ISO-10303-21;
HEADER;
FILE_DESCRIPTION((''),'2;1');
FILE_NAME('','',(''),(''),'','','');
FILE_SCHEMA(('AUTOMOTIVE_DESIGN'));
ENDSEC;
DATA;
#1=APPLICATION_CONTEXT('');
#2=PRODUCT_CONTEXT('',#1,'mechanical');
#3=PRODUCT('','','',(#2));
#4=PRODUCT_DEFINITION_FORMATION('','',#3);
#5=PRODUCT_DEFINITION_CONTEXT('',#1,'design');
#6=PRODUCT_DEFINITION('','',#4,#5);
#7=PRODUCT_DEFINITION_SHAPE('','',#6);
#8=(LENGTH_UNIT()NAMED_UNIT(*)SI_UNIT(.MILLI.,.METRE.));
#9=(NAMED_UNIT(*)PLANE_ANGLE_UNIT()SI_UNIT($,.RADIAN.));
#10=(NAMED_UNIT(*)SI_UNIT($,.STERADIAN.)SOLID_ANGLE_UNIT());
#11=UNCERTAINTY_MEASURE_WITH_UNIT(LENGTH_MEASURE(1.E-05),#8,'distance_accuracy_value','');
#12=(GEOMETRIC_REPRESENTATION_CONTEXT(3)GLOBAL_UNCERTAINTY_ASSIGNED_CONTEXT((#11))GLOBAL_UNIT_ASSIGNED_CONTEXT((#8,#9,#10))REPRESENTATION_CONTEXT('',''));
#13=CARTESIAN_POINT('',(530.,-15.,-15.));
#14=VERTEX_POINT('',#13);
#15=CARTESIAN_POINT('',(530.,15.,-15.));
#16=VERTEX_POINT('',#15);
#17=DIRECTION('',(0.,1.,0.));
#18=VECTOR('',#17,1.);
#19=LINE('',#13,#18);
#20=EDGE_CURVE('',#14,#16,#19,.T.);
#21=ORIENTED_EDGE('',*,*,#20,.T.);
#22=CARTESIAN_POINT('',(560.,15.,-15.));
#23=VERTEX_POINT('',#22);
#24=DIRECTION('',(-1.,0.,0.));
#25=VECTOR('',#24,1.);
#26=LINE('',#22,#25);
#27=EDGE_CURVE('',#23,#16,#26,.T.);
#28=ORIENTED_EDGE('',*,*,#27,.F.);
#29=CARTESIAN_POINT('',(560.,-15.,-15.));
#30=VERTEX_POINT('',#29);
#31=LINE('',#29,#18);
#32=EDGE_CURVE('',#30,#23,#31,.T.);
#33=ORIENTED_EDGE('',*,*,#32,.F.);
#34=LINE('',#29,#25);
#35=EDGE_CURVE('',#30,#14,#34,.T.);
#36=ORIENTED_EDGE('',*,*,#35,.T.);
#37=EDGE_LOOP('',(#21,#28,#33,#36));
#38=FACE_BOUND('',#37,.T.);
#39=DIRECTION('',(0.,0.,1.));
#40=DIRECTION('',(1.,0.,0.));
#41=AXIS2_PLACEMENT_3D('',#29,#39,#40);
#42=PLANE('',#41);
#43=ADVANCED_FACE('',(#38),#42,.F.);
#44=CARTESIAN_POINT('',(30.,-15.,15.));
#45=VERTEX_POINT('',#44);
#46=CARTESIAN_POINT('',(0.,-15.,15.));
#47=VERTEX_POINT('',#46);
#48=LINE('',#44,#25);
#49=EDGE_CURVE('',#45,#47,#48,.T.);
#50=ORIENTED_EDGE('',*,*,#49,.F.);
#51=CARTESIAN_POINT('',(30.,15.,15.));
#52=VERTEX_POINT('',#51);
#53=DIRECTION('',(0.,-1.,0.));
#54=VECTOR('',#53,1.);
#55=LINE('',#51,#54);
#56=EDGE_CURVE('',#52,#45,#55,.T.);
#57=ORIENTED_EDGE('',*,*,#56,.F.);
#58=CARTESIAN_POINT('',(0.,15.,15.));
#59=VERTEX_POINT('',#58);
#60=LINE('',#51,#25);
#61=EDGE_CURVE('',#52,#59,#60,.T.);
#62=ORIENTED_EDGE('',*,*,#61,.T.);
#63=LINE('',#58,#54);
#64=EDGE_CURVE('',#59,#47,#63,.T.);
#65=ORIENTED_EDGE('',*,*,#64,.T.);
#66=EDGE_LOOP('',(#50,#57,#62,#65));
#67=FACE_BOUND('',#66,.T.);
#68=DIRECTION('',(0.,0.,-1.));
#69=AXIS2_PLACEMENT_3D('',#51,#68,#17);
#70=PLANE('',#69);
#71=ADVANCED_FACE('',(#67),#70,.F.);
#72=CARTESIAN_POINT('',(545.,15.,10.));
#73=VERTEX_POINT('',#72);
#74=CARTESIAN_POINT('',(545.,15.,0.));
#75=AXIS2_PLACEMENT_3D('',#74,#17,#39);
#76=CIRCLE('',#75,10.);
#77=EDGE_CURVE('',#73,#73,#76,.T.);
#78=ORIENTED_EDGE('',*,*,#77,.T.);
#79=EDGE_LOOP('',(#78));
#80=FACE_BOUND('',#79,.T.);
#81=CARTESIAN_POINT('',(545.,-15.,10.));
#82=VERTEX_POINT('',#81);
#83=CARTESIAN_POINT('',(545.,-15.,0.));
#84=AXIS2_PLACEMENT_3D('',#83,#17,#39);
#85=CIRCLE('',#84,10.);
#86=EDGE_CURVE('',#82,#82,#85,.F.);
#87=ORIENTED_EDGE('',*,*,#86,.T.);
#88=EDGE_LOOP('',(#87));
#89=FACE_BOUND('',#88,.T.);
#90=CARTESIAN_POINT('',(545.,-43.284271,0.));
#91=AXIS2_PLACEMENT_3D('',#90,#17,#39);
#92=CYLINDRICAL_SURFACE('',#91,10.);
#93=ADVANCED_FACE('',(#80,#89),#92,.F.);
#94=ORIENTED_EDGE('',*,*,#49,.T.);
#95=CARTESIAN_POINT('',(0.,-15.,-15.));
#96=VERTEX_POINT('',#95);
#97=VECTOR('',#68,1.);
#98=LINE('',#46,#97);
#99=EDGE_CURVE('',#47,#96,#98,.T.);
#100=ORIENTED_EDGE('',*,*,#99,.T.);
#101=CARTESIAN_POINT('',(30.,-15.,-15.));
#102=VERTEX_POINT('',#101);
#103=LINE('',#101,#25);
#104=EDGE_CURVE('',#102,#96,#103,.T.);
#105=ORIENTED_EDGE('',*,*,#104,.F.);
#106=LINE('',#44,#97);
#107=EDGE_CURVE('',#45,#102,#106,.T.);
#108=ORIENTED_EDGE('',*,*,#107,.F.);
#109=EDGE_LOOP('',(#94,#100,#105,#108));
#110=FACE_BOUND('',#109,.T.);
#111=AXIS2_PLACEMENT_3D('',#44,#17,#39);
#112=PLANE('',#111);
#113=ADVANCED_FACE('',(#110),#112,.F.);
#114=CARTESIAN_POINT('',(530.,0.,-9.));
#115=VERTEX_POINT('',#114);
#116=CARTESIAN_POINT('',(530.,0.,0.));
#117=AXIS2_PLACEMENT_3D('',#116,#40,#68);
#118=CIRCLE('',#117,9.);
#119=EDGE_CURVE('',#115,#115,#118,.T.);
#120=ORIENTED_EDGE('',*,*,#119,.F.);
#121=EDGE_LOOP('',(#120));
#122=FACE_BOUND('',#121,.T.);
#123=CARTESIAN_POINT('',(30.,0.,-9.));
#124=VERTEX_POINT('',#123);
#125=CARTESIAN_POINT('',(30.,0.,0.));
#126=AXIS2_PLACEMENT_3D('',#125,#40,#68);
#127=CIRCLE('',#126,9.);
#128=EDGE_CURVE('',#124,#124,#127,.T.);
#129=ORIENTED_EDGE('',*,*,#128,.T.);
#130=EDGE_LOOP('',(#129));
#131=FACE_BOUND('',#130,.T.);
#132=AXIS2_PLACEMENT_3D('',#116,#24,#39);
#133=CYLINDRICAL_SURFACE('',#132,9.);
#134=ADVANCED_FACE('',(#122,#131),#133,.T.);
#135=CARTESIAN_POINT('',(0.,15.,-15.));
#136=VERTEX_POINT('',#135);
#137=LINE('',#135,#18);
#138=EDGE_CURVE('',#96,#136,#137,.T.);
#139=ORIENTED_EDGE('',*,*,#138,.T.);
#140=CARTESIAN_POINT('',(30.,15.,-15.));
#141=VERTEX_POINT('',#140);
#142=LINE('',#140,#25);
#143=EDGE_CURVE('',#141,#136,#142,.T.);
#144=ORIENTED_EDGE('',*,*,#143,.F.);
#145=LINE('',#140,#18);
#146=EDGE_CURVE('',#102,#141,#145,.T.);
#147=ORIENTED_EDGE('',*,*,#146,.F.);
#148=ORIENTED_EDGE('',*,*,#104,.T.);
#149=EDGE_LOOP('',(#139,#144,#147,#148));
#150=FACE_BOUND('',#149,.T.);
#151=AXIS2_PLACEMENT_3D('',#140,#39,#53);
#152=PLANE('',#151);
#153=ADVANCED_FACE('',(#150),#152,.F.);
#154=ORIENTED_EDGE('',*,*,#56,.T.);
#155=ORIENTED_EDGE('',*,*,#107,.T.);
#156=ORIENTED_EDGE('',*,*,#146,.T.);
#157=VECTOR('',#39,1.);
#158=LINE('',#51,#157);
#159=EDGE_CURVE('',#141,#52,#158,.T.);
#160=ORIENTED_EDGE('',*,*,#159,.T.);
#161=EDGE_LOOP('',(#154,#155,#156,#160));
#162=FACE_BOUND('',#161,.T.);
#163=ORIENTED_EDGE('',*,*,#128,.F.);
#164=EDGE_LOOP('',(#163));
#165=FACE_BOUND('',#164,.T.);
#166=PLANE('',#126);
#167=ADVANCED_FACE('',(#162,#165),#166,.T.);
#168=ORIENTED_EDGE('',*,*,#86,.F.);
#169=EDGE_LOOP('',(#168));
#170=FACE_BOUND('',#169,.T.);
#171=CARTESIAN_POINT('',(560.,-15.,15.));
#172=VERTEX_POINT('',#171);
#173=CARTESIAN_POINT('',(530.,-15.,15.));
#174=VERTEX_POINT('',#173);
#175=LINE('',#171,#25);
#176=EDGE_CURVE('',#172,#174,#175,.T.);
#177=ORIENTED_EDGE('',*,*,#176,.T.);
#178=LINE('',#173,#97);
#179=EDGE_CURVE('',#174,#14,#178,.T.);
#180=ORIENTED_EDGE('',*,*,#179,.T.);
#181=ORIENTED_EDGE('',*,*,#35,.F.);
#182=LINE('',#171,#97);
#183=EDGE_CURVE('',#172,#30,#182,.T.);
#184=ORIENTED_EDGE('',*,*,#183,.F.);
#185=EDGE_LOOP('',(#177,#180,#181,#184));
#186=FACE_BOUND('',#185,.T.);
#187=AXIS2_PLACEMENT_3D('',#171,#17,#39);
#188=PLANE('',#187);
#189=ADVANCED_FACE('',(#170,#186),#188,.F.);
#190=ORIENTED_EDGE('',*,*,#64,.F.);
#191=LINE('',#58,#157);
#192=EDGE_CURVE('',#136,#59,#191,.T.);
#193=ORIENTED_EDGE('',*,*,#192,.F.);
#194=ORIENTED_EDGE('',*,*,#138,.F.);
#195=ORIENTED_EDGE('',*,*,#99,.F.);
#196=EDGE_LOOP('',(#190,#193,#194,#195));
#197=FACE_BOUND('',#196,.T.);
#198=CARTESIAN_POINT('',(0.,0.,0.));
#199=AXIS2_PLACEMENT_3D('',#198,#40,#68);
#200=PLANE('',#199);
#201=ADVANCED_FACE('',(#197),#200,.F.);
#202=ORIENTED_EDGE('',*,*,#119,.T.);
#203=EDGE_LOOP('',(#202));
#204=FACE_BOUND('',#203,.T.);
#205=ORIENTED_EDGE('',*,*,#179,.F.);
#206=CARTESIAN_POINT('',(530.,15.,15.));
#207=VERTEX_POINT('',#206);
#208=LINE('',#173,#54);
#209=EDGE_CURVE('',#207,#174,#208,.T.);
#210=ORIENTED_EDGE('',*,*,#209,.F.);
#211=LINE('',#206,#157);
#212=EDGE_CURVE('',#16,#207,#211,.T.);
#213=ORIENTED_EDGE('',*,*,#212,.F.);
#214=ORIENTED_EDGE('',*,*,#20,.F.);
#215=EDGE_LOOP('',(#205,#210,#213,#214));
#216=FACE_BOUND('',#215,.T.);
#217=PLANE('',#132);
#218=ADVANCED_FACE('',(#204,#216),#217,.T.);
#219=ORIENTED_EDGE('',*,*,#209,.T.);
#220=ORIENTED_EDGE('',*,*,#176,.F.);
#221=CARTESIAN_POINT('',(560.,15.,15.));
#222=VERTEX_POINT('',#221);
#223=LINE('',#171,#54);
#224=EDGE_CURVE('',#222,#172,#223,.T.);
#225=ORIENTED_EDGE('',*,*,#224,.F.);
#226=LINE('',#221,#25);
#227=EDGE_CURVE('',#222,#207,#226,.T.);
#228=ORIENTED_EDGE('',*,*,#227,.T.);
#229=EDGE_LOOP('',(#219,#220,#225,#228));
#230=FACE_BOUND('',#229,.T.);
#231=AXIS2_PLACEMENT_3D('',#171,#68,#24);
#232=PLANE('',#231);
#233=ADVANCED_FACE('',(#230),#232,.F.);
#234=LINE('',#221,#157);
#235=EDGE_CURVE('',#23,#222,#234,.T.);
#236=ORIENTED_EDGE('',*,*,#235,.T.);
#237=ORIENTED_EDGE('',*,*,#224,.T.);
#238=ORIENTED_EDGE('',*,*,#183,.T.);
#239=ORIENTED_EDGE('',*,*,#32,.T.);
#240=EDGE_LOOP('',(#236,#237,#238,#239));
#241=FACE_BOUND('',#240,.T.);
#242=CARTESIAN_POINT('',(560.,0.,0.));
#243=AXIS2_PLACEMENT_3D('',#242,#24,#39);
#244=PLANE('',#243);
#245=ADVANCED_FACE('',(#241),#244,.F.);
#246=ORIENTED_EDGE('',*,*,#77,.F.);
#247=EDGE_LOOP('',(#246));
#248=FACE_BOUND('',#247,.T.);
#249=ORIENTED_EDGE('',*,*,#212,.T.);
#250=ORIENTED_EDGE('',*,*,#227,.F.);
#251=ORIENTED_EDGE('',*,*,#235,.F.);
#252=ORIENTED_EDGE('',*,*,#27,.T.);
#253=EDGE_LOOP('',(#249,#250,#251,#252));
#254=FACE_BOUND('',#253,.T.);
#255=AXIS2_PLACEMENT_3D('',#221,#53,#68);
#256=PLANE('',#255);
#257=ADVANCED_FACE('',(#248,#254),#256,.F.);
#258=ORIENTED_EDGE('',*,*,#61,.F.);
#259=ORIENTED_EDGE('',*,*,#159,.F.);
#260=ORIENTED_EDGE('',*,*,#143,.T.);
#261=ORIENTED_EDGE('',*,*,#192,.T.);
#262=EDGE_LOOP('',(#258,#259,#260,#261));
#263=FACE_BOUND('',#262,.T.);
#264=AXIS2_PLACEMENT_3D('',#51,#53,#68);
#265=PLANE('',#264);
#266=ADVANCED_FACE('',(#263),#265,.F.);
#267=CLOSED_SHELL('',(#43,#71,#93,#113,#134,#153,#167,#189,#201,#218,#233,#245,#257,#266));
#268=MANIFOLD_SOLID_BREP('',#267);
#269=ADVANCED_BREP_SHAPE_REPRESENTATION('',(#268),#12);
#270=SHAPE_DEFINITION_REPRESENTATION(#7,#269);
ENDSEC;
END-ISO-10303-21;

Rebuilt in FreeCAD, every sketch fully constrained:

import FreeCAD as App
import Part
import Sketcher

doc = App.newDocument("Part")
body = doc.addObject("PartDesign::Body", "Body")

# Sketch on YZ plane
sketch1 = doc.addObject("Sketcher::SketchObject", "Sketch")
body.addObject(sketch1)
sketch1.AttachmentSupport = (doc.YZ_Plane, [""])
sketch1.MapMode = "FlatFace"
sketch1.addGeometry([
    Part.LineSegment(App.Vector(15, 15, 0), App.Vector(-15, 15, 0)),
    Part.LineSegment(App.Vector(-15, 15, 0), App.Vector(-15, -15, 0)),
    Part.LineSegment(App.Vector(-15, -15, 0), App.Vector(15, -15, 0)),
    Part.LineSegment(App.Vector(15, -15, 0), App.Vector(15, 15, 0)),
], False)
sketch1.addConstraint([
    Sketcher.Constraint("Coincident", 0, 2, 1, 1),
    Sketcher.Constraint("Coincident", 1, 2, 2, 1),
    Sketcher.Constraint("Coincident", 2, 2, 3, 1),
    Sketcher.Constraint("Coincident", 3, 2, 0, 1),
    Sketcher.Constraint("Horizontal", 0),
    Sketcher.Constraint("Vertical", 1),
    Sketcher.Constraint("Horizontal", 2),
    Sketcher.Constraint("Vertical", 3),
    Sketcher.Constraint("Symmetric", 0, 2, 2, 2, -1, 1),
    Sketcher.Constraint("Equal", 2, 1),
    Sketcher.Constraint("DistanceX", 0, 2, 0, 1, 30.0),
])
pad1 = doc.addObject("PartDesign::Pad", "Pad")
body.addObject(pad1)
pad1.Profile = sketch1
pad1.Length = 30

# Sketch on YZ plane
sketch2 = doc.addObject("Sketcher::SketchObject", "Sketch001")
body.addObject(sketch2)
sketch2.AttachmentSupport = (doc.YZ_Plane, [""])
sketch2.MapMode = "FlatFace"
sketch2.AttachmentOffset = App.Placement(App.Vector(0, 0, 30), App.Rotation())
sketch2.addGeometry(Part.Circle(App.Vector(0, 0, 0), App.Vector(0, 0, 1), 9), False)
sketch2.addConstraint([
    Sketcher.Constraint("Coincident", 0, 3, -1, 1),
    Sketcher.Constraint("Diameter", 0, 18.0),
])
pad2 = doc.addObject("PartDesign::Pad", "Pad001")
body.addObject(pad2)
pad2.Profile = sketch2
pad2.Length = 500

# Sketch on YZ plane
sketch3 = doc.addObject("Sketcher::SketchObject", "Sketch002")
body.addObject(sketch3)
sketch3.AttachmentSupport = (doc.YZ_Plane, [""])
sketch3.MapMode = "FlatFace"
sketch3.AttachmentOffset = App.Placement(App.Vector(0, 0, 530), App.Rotation())
sketch3.addGeometry([
    Part.LineSegment(App.Vector(15, 15, 0), App.Vector(-15, 15, 0)),
    Part.LineSegment(App.Vector(-15, 15, 0), App.Vector(-15, -15, 0)),
    Part.LineSegment(App.Vector(-15, -15, 0), App.Vector(15, -15, 0)),
    Part.LineSegment(App.Vector(15, -15, 0), App.Vector(15, 15, 0)),
], False)
sketch3.addConstraint([
    Sketcher.Constraint("Coincident", 0, 2, 1, 1),
    Sketcher.Constraint("Coincident", 1, 2, 2, 1),
    Sketcher.Constraint("Coincident", 2, 2, 3, 1),
    Sketcher.Constraint("Coincident", 3, 2, 0, 1),
    Sketcher.Constraint("Horizontal", 0),
    Sketcher.Constraint("Vertical", 1),
    Sketcher.Constraint("Horizontal", 2),
    Sketcher.Constraint("Vertical", 3),
    Sketcher.Constraint("Symmetric", 0, 2, 2, 2, -1, 1),
    Sketcher.Constraint("Equal", 2, 1),
    Sketcher.Constraint("DistanceX", 0, 2, 0, 1, 30.0),
])
pad3 = doc.addObject("PartDesign::Pad", "Pad002")
body.addObject(pad3)
pad3.Profile = sketch3
pad3.Length = 30

# Sketch on XZ plane
sketch4 = doc.addObject("Sketcher::SketchObject", "Sketch003")
body.addObject(sketch4)
sketch4.AttachmentSupport = (doc.XZ_Plane, [""])
sketch4.MapMode = "FlatFace"
sketch4.AttachmentOffset = App.Placement(App.Vector(0, 0, -15), App.Rotation())
sketch4.addGeometry(Part.Circle(App.Vector(545, 0, 0), App.Vector(0, 0, 1), 10), False)
sketch4.addConstraint([
    Sketcher.Constraint("PointOnObject", 0, 3, -1),
    Sketcher.Constraint("Diameter", 0, 20.0),
    Sketcher.Constraint("DistanceX", -1, 1, 0, 3, 545.0),
])
pocket1 = doc.addObject("PartDesign::Pocket", "Pocket")
body.addObject(pocket1)
pocket1.Profile = sketch4
pocket1.Length = 30
pocket1.Reversed = True

doc.recompute()
